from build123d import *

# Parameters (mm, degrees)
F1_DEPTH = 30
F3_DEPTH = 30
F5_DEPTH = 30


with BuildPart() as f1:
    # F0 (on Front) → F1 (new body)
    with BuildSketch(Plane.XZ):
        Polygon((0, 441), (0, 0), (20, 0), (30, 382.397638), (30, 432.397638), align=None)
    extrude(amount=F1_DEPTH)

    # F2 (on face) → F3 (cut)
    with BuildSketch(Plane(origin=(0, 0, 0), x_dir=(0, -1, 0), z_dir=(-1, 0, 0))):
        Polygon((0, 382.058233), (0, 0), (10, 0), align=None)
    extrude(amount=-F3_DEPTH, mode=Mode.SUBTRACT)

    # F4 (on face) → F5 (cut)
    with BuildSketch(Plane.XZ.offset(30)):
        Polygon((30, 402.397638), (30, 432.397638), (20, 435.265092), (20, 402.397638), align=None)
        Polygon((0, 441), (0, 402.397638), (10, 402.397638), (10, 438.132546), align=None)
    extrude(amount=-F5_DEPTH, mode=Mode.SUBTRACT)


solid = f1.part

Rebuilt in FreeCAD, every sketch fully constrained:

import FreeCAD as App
import Part
import Sketcher
from FreeCAD import Vector
Q = App.Units.Quantity

doc = App.newDocument("Part")
body = doc.addObject("PartDesign::Body", "Body")

sketch1 = body.newObject("Sketcher::SketchObject", "Sketch")
sketch1.AttachmentSupport = (doc.getObject("XZ_Plane"), [""])
sketch1.MapMode = "FlatFace"
sketch1.addGeometry(Part.LineSegment(Vector(0, 441, 0), Vector(0, 0, 0)), False)
sketch1.addGeometry(Part.LineSegment(Vector(0, 0, 0), Vector(20, 0, 0)), False)
sketch1.addGeometry(Part.LineSegment(Vector(20, 0, 0), Vector(30, 382.397638, 0)), False)
sketch1.addGeometry(Part.LineSegment(Vector(30, 382.397638, 0), Vector(30, 432.397638, 0)), False)
sketch1.addGeometry(Part.LineSegment(Vector(30, 432.397638, 0), Vector(0, 441, 0)), False)
sketch1.addConstraint(Sketcher.Constraint("Coincident", 0, 2, 1, 1))
sketch1.addConstraint(Sketcher.Constraint("Coincident", 1, 2, 2, 1))
sketch1.addConstraint(Sketcher.Constraint("Coincident", 2, 2, 3, 1))
sketch1.addConstraint(Sketcher.Constraint("Coincident", 3, 2, 4, 1))
sketch1.addConstraint(Sketcher.Constraint("Coincident", 4, 2, 0, 1))
sketch1.addConstraint(Sketcher.Constraint("Vertical", 0))
sketch1.addConstraint(Sketcher.Constraint("Horizontal", 1))
sketch1.addConstraint(Sketcher.Constraint("Vertical", 3))
sketch1.addConstraint(Sketcher.Constraint("Coincident", 0, 2, -1, 1))
sketch1.addConstraint(Sketcher.Constraint("DistanceX", 1, 1, 1, 2, 20.0))
sketch1.addConstraint(Sketcher.Constraint("DistanceY", 0, 2, 0, 1, 441.0))
sketch1.addConstraint(Sketcher.Constraint("DistanceY", 3, 1, 3, 2, 50.0))
sketch1.addConstraint(Sketcher.Constraint("Angle", 4, Q("163.999999 deg")))
sketch1.addConstraint(Sketcher.Constraint("DistanceX", -1, 1, 2, 2, 30.0))
pad1 = body.newObject("PartDesign::Pad", "Pad")
pad1.Profile = sketch1
pad1.Length = 30

sketch2 = body.newObject("Sketcher::SketchObject", "Sketch001")
sketch2.AttachmentSupport = (doc.getObject("YZ_Plane"), [""])
sketch2.MapMode = "FlatFace"
sketch2.addGeometry(Part.LineSegment(Vector(0, 382.058233, 0), Vector(0, 0, 0)), False)
sketch2.addGeometry(Part.LineSegment(Vector(0, 0, 0), Vector(-10, 0, 0)), False)
sketch2.addGeometry(Part.LineSegment(Vector(-10, 0, 0), Vector(0, 382.058233, 0)), False)
sketch2.addConstraint(Sketcher.Constraint("Coincident", 0, 2, 1, 1))
sketch2.addConstraint(Sketcher.Constraint("Coincident", 1, 2, 2, 1))
sketch2.addConstraint(Sketcher.Constraint("Coincident", 2, 2, 0, 1))
sketch2.addConstraint(Sketcher.Constraint("Vertical", 0))
sketch2.addConstraint(Sketcher.Constraint("Horizontal", 1))
sketch2.addConstraint(Sketcher.Constraint("Coincident", 0, 2, -1, 1))
sketch2.addConstraint(Sketcher.Constraint("DistanceX", 1, 2, 1, 1, 10.0))
sketch2.addConstraint(Sketcher.Constraint("Distance", 2, 382.189081))
pocket1 = body.newObject("PartDesign::Pocket", "Pocket")
pocket1.Profile = sketch2
pocket1.Length = 30
pocket1.Reversed = True

sketch3 = body.newObject("Sketcher::SketchObject", "Sketch002")
sketch3.AttachmentSupport = (doc.getObject("XZ_Plane"), [""])
sketch3.MapMode = "FlatFace"
sketch3.AttachmentOffset = App.Placement(Vector(0, 0, 30), App.Rotation())
sketch3.addGeometry(Part.LineSegment(Vector(30, 402.397638, 0), Vector(30, 432.397638, 0)), False)
sketch3.addGeometry(Part.LineSegment(Vector(30, 432.397638, 0), Vector(20, 435.265092, 0)), False)
sketch3.addGeometry(Part.LineSegment(Vector(20, 435.265092, 0), Vector(20, 402.397638, 0)), False)
sketch3.addGeometry(Part.LineSegment(Vector(20, 402.397638, 0), Vector(30, 402.397638, 0)), False)
sketch3.addGeometry(Part.LineSegment(Vector(0, 441, 0), Vector(0, 402.397638, 0)), False)
sketch3.addGeometry(Part.LineSegment(Vector(0, 402.397638, 0), Vector(10, 402.397638, 0)), False)
sketch3.addGeometry(Part.LineSegment(Vector(10, 402.397638, 0), Vector(10, 438.132546, 0)), False)
sketch3.addGeometry(Part.LineSegment(Vector(10, 438.132546, 0), Vector(0, 441, 0)), False)
sketch3.addConstraint(Sketcher.Constraint("Coincident", 0, 2, 1, 1))
sketch3.addConstraint(Sketcher.Constraint("Coincident", 1, 2, 2, 1))
sketch3.addConstraint(Sketcher.Constraint("Coincident", 2, 2, 3, 1))
sketch3.addConstraint(Sketcher.Constraint("Coincident", 3, 2, 0, 1))
sketch3.addConstraint(Sketcher.Constraint("Coincident", 4, 2, 5, 1))
sketch3.addConstraint(Sketcher.Constraint("Coincident", 5, 2, 6, 1))
sketch3.addConstraint(Sketcher.Constraint("Coincident", 6, 2, 7, 1))
sketch3.addConstraint(Sketcher.Constraint("Coincident", 7, 2, 4, 1))
sketch3.addConstraint(Sketcher.Constraint("Vertical", 0))
sketch3.addConstraint(Sketcher.Constraint("Vertical", 2))
sketch3.addConstraint(Sketcher.Constraint("Horizontal", 3))
sketch3.addConstraint(Sketcher.Constraint("Vertical", 4))
sketch3.addConstraint(Sketcher.Constraint("Horizontal", 5))
sketch3.addConstraint(Sketcher.Constraint("Vertical", 6))
sketch3.addConstraint(Sketcher.Constraint("PointOnObject", 4, 2, -2))
sketch3.addConstraint(Sketcher.Constraint("Parallel", 1, 7))
sketch3.addConstraint(Sketcher.Constraint("Horizontal", 3, 2, 4, 2))
sketch3.addConstraint(Sketcher.Constraint("Equal", 3, 5))
sketch3.addConstraint(Sketcher.Constraint("DistanceX", 3, 1, 3, 2, 10.0))
sketch3.addConstraint(Sketcher.Constraint("DistanceY", 0, 1, 0, 2, 30.0))
sketch3.addConstraint(Sketcher.Constraint("Angle", 1, Q("163.999999 deg")))
sketch3.addConstraint(Sketcher.Constraint("DistanceX", -1, 1, 0, 2, 30.0))
sketch3.addConstraint(Sketcher.Constraint("DistanceY", -1, 1, 7, 2, 441.0))
sketch3.addConstraint(Sketcher.Constraint("DistanceY", 6, 1, 6, 2, 35.734908))
pocket2 = body.newObject("PartDesign::Pocket", "Pocket001")
pocket2.Profile = sketch3
pocket2.Length = 30

doc.recompute()
